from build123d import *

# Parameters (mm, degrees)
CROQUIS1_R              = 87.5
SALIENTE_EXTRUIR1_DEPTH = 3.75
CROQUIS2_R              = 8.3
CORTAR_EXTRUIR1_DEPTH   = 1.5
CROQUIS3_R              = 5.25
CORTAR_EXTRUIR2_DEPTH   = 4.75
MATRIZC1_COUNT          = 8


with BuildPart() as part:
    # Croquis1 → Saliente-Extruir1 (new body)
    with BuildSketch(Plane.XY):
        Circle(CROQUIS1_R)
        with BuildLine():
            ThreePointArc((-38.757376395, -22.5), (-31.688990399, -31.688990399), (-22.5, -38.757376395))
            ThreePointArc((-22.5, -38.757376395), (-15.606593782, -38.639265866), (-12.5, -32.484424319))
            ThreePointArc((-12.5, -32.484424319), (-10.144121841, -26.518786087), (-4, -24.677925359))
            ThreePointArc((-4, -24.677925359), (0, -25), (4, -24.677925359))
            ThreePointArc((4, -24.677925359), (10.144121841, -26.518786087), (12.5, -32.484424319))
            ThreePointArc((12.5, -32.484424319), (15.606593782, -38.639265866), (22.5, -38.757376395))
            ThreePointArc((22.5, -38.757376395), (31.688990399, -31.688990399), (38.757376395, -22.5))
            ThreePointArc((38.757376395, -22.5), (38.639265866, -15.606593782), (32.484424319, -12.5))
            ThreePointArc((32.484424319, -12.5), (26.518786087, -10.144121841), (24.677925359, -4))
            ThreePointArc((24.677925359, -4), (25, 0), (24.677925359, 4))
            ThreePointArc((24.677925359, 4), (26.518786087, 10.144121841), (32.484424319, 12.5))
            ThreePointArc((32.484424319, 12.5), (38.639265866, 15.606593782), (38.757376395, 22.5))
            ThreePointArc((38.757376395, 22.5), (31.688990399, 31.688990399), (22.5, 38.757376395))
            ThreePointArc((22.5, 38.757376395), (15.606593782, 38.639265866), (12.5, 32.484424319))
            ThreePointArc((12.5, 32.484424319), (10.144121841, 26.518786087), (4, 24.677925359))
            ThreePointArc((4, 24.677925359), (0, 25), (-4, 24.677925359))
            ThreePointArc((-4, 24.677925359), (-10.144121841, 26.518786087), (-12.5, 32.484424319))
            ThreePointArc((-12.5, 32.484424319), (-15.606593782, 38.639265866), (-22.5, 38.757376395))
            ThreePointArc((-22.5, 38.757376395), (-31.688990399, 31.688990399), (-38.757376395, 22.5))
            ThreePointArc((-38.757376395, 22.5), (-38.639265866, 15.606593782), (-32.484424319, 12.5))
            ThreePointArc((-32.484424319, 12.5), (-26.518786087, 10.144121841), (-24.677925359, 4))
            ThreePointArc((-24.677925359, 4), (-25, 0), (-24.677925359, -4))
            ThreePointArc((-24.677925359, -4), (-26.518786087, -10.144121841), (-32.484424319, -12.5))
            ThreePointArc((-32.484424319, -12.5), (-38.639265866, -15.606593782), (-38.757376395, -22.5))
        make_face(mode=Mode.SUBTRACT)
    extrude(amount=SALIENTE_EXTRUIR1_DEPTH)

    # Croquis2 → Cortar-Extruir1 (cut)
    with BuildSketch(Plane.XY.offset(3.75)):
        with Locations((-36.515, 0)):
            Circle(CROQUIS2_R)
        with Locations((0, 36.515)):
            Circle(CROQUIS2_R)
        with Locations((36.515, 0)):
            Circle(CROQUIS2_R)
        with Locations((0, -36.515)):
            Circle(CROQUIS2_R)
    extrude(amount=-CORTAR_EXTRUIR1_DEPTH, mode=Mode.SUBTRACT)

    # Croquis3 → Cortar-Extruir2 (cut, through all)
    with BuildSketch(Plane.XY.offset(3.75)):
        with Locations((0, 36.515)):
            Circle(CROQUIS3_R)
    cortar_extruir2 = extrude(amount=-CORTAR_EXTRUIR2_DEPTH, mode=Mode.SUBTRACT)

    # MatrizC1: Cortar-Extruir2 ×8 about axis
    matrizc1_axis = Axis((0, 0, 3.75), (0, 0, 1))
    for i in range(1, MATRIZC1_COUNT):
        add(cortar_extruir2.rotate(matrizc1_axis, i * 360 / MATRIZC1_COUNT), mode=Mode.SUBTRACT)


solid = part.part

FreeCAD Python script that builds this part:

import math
import FreeCAD as App
import Part
import Sketcher

V = App.Vector

doc = App.newDocument("Part")
body = doc.addObject("PartDesign::Body", "Body")

# Sketch on XY plane
sketch1 = body.newObject("Sketcher::SketchObject", "Sketch")
sketch1.AttachmentSupport = (doc.getObject("XY_Plane"), [""])
sketch1.MapMode = "FlatFace"
sketch1.addGeometry([
    Part.Circle(V(0, 0, 0), V(0, 0, 1), 88),  # 0
    Part.ArcOfCircle(Part.Circle(V(0, 0, 0), V(0, 0, 1), 45), math.radians(-150), math.radians(-120)),  # 1
    Part.ArcOfCircle(Part.Circle(V(-33, -19, 0), V(0, 0, 1), 7), math.radians(86), math.radians(210)),  # 2
    Part.ArcOfCircle(Part.Circle(V(-32, -5, 0), V(0, 0, 1), 7), math.radians(-94), math.radians(9)),  # 3
    Part.ArcOfCircle(Part.Circle(V(0, 0, 0), V(0, 0, 1), 25), math.radians(170.79), math.radians(189.21)),  # 4
    Part.ArcOfCircle(Part.Circle(V(-32, 5, 0), V(0, 0, 1), 7), math.radians(-9), math.radians(94)),  # 5
    Part.ArcOfCircle(Part.Circle(V(-33, 19, 0), V(0, 0, 1), 7), math.radians(150), math.radians(274)),  # 6
    Part.ArcOfCircle(Part.Circle(V(0, 0, 0), V(0, 0, 1), 45), math.radians(120), math.radians(150)),  # 7
    Part.ArcOfCircle(Part.Circle(V(-19, 33, 0), V(0, 0, 1), 7), math.radians(-4), math.radians(120)),  # 8
    Part.ArcOfCircle(Part.Circle(V(-5, 32, 0), V(0, 0, 1), 7), math.radians(176), math.radians(279)),  # 9
    Part.ArcOfCircle(Part.Circle(V(0, 0, 0), V(0, 0, 1), 25), math.radians(80.79), math.radians(99.21)),  # 10
    Part.ArcOfCircle(Part.Circle(V(5, 32, 0), V(0, 0, 1), 7), math.radians(-99), math.radians(4)),  # 11
    Part.ArcOfCircle(Part.Circle(V(19, 33, 0), V(0, 0, 1), 7), math.radians(60), math.radians(184)),  # 12
    Part.ArcOfCircle(Part.Circle(V(0, 0, 0), V(0, 0, 1), 45), math.radians(30), math.radians(60)),  # 13
    Part.ArcOfCircle(Part.Circle(V(33, 19, 0), V(0, 0, 1), 7), math.radians(-94), math.radians(30)),  # 14
    Part.ArcOfCircle(Part.Circle(V(32, 5, 0), V(0, 0, 1), 7), math.radians(86), math.radians(189)),  # 15
    Part.ArcOfCircle(Part.Circle(V(0, 0, 0), V(0, 0, 1), 25), math.radians(-9.21), math.radians(9.21)),  # 16
    Part.ArcOfCircle(Part.Circle(V(32, -5, 0), V(0, 0, 1), 7), math.radians(171), math.radians(274)),  # 17
    Part.ArcOfCircle(Part.Circle(V(33, -19, 0), V(0, 0, 1), 7), math.radians(-30), math.radians(94)),  # 18
    Part.ArcOfCircle(Part.Circle(V(0, 0, 0), V(0, 0, 1), 45), math.radians(-60), math.radians(-30)),  # 19
    Part.ArcOfCircle(Part.Circle(V(19, -33, 0), V(0, 0, 1), 7), math.radians(176), math.radians(300)),  # 20
    Part.ArcOfCircle(Part.Circle(V(5, -32, 0), V(0, 0, 1), 7), math.radians(-4), math.radians(99)),  # 21
    Part.ArcOfCircle(Part.Circle(V(0, 0, 0), V(0, 0, 1), 25), math.radians(-99.21), math.radians(-80.79)),  # 22
    Part.ArcOfCircle(Part.Circle(V(-5, -32, 0), V(0, 0, 1), 7), math.radians(81), math.radians(184)),  # 23
    Part.ArcOfCircle(Part.Circle(V(-19, -33, 0), V(0, 0, 1), 7), math.radians(-120), math.radians(4)),  # 24
], False)
sketch1.addConstraint([
    Sketcher.Constraint("Tangent", 1, 1, 2, 2),
    Sketcher.Constraint("Tangent", 2, 1, 3, 1),
    Sketcher.Constraint("Tangent", 3, 2, 4, 2),
    Sketcher.Constraint("Tangent", 4, 1, 5, 1),
    Sketcher.Constraint("Tangent", 5, 2, 6, 2),
    Sketcher.Constraint("Tangent", 6, 1, 7, 2),
    Sketcher.Constraint("Tangent", 7, 1, 8, 2),
    Sketcher.Constraint("Tangent", 8, 1, 9, 1),
    Sketcher.Constraint("Tangent", 9, 2, 10, 2),
    Sketcher.Constraint("Tangent", 10, 1, 11, 1),
    Sketcher.Constraint("Tangent", 11, 2, 12, 2),
    Sketcher.Constraint("Tangent", 12, 1, 13, 2),
    Sketcher.Constraint("Tangent", 13, 1, 14, 2),
    Sketcher.Constraint("Tangent", 14, 1, 15, 1),
    Sketcher.Constraint("Tangent", 15, 2, 16, 2),
    Sketcher.Constraint("Tangent", 16, 1, 17, 1),
    Sketcher.Constraint("Tangent", 17, 2, 18, 2),
    Sketcher.Constraint("Tangent", 18, 1, 19, 2),
    Sketcher.Constraint("Tangent", 19, 1, 20, 2),
    Sketcher.Constraint("Tangent", 20, 1, 21, 1),
    Sketcher.Constraint("Tangent", 21, 2, 22, 2),
    Sketcher.Constraint("Tangent", 22, 1, 23, 1),
    Sketcher.Constraint("Tangent", 23, 2, 24, 2),
    Sketcher.Constraint("Tangent", 24, 1, 1, 2),
    Sketcher.Constraint("Coincident", 0, 3, -1, 1),
    Sketcher.Constraint("Coincident", 1, 3, -1, 1),
    Sketcher.Constraint("Coincident", 4, 3, -1, 1),
    Sketcher.Constraint("Coincident", 7, 3, -1, 1),
    Sketcher.Constraint("Coincident", 10, 3, -1, 1),
    Sketcher.Constraint("Coincident", 13, 3, -1, 1),
    Sketcher.Constraint("Coincident", 16, 3, -1, 1),
    Sketcher.Constraint("Coincident", 19, 3, -1, 1),
    Sketcher.Constraint("Coincident", 22, 3, -1, 1),
    Sketcher.Constraint("Equal", 3, 5),
    Sketcher.Constraint("Equal", 2, 6),
    Sketcher.Constraint("Equal", 1, 7),
    Sketcher.Constraint("Equal", 6, 8),
    Sketcher.Constraint("Equal", 5, 9),
    Sketcher.Constraint("Equal", 4, 10),
    Sketcher.Constraint("Equal", 9, 11),
    Sketcher.Constraint("Equal", 8, 12),
    Sketcher.Constraint("Equal", 7, 13),
    Sketcher.Constraint("Equal", 12, 14),
    Sketcher.Constraint("Equal", 11, 15),
    Sketcher.Constraint("Equal", 10, 16),
    Sketcher.Constraint("Equal", 15, 17),
    Sketcher.Constraint("Equal", 14, 18),
    Sketcher.Constraint("Equal", 13, 19),
    Sketcher.Constraint("Equal", 18, 20),
    Sketcher.Constraint("Equal", 17, 21),
    Sketcher.Constraint("Equal", 16, 22),
    Sketcher.Constraint("Equal", 21, 23),
    Sketcher.Constraint("Equal", 20, 24),
    Sketcher.Constraint("Horizontal", 9, 3, 11, 3),
    Sketcher.Constraint("Horizontal", 6, 3, 14, 3),
    Sketcher.Constraint("Horizontal", 3, 3, 17, 3),
    Sketcher.Constraint("Horizontal", 21, 3, 23, 3),
    Sketcher.Constraint("Vertical", 3, 3, 5, 3),
    Sketcher.Constraint("Vertical", 12, 3, 20, 3),
    Sketcher.Constraint("Diameter", 0, 175.0),
    Sketcher.Constraint("Radius", 4, 25.0),
    Sketcher.Constraint("DistanceY", 3, 2, -1, 1, 4.0),
    Sketcher.Constraint("DistanceX", 9, 2, -1, 1, 4.0),
    Sketcher.Constraint("Radius", 1, 44.815),
    Sketcher.Constraint("DistanceY", 1, 1, 2, 1, 10.0),
    Sketcher.Constraint("DistanceY", 1, 1, -1, 1, 22.5),
])
pad1 = body.newObject("PartDesign::Pad", "Pad")
pad1.Profile = sketch1
pad1.Length = 3.75

# Sketch on XY plane
sketch2 = body.newObject("Sketcher::SketchObject", "Sketch001")
sketch2.AttachmentSupport = (doc.getObject("XY_Plane"), [""])
sketch2.MapMode = "FlatFace"
sketch2.AttachmentOffset = App.Placement(V(0, 0, 3.75), App.Rotation())
sketch2.addGeometry([
    Part.Circle(V(-37, 0, 0), V(0, 0, 1), 8),
    Part.Circle(V(0, 37, 0), V(0, 0, 1), 8),
    Part.Circle(V(37, 0, 0), V(0, 0, 1), 8),
    Part.Circle(V(0, -37, 0), V(0, 0, 1), 8),
], False)
sketch2.addConstraint([
    Sketcher.Constraint("Equal", 0, 1),
    Sketcher.Constraint("Equal", 1, 2),
    Sketcher.Constraint("Equal", 2, 3),
    Sketcher.Constraint("Symmetric", 0, 3, 2, 3, -1, 1),
    Sketcher.Constraint("Symmetric", 1, 3, 3, 3, -1, 1),
    Sketcher.Constraint("PointOnObject", 0, 3, -1),
    Sketcher.Constraint("PointOnObject", 1, 3, -2),
    Sketcher.Constraint("Diameter", 0, 16.6),
    Sketcher.Constraint("DistanceX", 0, 3, 2, 3, 73.03),
    Sketcher.Constraint("DistanceY", 3, 3, 1, 3, 73.03),
])
pocket1 = body.newObject("PartDesign::Pocket", "Pocket")
pocket1.Profile = sketch2
pocket1.Length = 1.5

# Sketch on XY plane
sketch3 = body.newObject("Sketcher::SketchObject", "Sketch002")
sketch3.AttachmentSupport = (doc.getObject("XY_Plane"), [""])
sketch3.MapMode = "FlatFace"
sketch3.AttachmentOffset = App.Placement(V(0, 0, 3.75), App.Rotation())
sketch3.addGeometry(Part.Circle(V(0, 37, 0), V(0, 0, 1), 5), False)
sketch3.addConstraint([
    Sketcher.Constraint("PointOnObject", 0, 3, -2),
    Sketcher.Constraint("Diameter", 0, 10.5),
    Sketcher.Constraint("DistanceY", -1, 1, 0, 3, 36.515),
])
pocket2 = body.newObject("PartDesign::Pocket", "Pocket001")
pocket2.Profile = sketch3
pocket2.Type = "ThroughAll"
doc.recompute()

polarpattern = body.newObject("PartDesign::PolarPattern", "PolarPattern")
polarpattern.Originals = [pocket2]
polarpattern.Axis = (doc.getObject("Z_Axis"), [""])
polarpattern.Angle = 360
polarpattern.Occurrences = 8
body.Tip = polarpattern

doc.recompute()
